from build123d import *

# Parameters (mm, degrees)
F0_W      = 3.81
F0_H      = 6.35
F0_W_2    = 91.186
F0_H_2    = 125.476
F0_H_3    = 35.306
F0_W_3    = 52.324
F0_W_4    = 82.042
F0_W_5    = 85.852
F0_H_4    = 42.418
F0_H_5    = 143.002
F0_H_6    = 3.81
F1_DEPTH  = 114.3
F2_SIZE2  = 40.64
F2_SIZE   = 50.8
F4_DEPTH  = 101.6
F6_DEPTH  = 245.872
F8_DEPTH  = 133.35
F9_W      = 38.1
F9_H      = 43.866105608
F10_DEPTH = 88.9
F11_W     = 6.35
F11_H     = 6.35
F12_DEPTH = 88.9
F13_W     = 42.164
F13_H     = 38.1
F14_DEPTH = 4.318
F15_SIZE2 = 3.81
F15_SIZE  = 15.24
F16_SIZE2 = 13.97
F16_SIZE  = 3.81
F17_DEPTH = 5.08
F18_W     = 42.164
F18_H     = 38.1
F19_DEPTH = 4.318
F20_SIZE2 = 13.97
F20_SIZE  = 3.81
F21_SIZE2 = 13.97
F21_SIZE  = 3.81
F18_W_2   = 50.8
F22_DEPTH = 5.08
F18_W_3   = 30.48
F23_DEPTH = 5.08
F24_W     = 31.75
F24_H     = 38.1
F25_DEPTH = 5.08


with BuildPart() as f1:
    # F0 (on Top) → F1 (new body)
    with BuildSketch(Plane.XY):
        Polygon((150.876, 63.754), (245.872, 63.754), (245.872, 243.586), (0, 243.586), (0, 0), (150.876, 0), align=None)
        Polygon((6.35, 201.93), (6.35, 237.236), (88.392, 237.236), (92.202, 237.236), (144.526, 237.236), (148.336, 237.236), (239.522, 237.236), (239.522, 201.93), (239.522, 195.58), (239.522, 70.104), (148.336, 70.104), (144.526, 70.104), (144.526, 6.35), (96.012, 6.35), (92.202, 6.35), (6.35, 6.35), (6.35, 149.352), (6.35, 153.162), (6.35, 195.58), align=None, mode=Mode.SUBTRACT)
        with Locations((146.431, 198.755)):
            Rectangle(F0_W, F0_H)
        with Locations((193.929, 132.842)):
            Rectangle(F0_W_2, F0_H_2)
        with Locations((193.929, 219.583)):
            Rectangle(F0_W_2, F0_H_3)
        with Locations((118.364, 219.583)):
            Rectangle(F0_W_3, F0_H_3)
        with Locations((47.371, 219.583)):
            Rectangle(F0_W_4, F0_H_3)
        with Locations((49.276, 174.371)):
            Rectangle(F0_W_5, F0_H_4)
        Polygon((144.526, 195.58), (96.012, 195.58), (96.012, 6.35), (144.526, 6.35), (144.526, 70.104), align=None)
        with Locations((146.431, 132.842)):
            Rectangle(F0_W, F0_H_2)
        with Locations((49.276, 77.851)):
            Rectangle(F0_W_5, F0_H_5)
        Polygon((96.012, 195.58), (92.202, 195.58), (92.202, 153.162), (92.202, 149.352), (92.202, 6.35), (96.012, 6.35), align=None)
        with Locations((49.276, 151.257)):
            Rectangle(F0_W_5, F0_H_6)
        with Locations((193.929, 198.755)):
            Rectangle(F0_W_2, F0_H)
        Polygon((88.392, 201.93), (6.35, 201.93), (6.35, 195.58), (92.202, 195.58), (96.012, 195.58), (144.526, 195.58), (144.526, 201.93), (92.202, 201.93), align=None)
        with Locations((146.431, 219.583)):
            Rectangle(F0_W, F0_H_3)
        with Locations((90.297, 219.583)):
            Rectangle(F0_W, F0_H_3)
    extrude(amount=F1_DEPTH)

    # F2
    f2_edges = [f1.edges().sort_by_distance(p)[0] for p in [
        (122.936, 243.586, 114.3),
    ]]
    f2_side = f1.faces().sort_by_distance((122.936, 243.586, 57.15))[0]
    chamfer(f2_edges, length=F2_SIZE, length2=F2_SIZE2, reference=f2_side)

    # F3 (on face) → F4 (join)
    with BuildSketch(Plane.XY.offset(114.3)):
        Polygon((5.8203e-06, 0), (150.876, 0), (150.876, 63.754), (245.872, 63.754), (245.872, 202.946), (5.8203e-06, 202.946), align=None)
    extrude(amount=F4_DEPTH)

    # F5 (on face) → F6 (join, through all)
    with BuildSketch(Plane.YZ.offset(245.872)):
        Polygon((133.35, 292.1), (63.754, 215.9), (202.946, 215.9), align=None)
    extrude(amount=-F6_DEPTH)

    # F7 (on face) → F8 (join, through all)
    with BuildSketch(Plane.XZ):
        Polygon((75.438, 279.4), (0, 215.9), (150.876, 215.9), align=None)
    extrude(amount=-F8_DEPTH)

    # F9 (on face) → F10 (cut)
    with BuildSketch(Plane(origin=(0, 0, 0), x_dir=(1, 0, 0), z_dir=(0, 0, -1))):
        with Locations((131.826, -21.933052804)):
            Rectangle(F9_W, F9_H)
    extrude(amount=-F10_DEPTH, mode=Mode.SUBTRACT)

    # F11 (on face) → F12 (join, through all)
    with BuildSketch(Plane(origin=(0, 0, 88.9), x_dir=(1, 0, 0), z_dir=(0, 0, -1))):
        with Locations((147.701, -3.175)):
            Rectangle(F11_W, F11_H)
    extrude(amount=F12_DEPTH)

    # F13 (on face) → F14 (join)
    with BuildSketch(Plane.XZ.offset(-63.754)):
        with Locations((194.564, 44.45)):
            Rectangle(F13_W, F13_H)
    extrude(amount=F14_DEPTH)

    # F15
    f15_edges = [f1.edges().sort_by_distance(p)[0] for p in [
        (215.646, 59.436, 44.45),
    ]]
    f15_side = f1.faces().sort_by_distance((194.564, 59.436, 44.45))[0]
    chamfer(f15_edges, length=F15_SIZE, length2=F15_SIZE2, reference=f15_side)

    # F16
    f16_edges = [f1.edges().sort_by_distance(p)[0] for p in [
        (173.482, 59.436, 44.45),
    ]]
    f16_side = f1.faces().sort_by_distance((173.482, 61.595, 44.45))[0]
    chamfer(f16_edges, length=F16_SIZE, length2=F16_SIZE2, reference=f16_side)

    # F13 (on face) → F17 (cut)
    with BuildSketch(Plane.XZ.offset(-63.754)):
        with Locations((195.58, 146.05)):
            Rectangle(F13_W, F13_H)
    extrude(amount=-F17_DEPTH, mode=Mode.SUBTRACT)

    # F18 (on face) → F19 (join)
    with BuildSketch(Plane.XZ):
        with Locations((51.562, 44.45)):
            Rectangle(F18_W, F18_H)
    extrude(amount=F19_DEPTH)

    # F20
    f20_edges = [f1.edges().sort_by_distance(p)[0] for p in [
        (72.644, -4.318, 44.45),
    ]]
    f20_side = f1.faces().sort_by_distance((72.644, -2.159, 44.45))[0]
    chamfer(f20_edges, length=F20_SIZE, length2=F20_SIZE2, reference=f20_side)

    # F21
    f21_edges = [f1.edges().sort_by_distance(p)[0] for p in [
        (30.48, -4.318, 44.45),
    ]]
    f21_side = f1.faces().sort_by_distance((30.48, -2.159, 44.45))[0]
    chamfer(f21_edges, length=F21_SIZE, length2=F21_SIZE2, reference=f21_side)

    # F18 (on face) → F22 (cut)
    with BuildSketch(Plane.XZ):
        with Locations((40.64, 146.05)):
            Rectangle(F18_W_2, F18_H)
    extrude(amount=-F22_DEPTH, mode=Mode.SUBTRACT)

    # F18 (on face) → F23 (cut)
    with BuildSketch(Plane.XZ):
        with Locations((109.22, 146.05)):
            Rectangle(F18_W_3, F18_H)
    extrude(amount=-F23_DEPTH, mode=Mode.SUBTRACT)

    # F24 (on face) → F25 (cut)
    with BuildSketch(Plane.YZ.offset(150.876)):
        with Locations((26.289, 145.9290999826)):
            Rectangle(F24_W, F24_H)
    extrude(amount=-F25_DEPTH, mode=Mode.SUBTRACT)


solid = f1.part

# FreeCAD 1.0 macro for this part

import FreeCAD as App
import Part
import Sketcher

V = App.Vector
Q = App.Units.Quantity


def edges_at(feature, points):
    """Names of the edges that pass closest to the given points."""
    edges = feature.Shape.Edges
    near = lambda p: min(range(len(edges)), key=lambda i: edges[i].distToShape(Part.Vertex(*p))[0])
    return sorted({f"Edge{near(p) + 1}" for p in points})

doc = App.newDocument("Part")
body = doc.addObject("PartDesign::Body", "Body")

sketch1 = doc.addObject("Sketcher::SketchObject", "Sketch")
body.addObject(sketch1)
sketch1.AttachmentSupport = (doc.XY_Plane, [""])
sketch1.MapMode = "FlatFace"
sketch1.addGeometry(Part.LineSegment(V(151, 64, 0), V(246, 64, 0)), False)
sketch1.addGeometry(Part.LineSegment(V(246, 64, 0), V(246, 244, 0)), False)
sketch1.addGeometry(Part.LineSegment(V(246, 244, 0), V(0, 244, 0)), False)
sketch1.addGeometry(Part.LineSegment(V(0, 244, 0), V(0, 0, 0)), False)
sketch1.addGeometry(Part.LineSegment(V(0, 0, 0), V(151, 0, 0)), False)
sketch1.addGeometry(Part.LineSegment(V(151, 0, 0), V(151, 64, 0)), False)
sketch1.addConstraint(Sketcher.Constraint("Coincident", 0, 2, 1, 1))
sketch1.addConstraint(Sketcher.Constraint("Coincident", 1, 2, 2, 1))
sketch1.addConstraint(Sketcher.Constraint("Coincident", 2, 2, 3, 1))
sketch1.addConstraint(Sketcher.Constraint("Coincident", 3, 2, 4, 1))
sketch1.addConstraint(Sketcher.Constraint("Coincident", 4, 2, 5, 1))
sketch1.addConstraint(Sketcher.Constraint("Coincident", 5, 2, 0, 1))
sketch1.addConstraint(Sketcher.Constraint("Horizontal", 0))
sketch1.addConstraint(Sketcher.Constraint("Vertical", 1))
sketch1.addConstraint(Sketcher.Constraint("Horizontal", 2))
sketch1.addConstraint(Sketcher.Constraint("Vertical", 3))
sketch1.addConstraint(Sketcher.Constraint("Horizontal", 4))
sketch1.addConstraint(Sketcher.Constraint("Vertical", 5))
sketch1.addConstraint(Sketcher.Constraint("Coincident", 3, 2, -1, 1))
sketch1.addConstraint(Sketcher.Constraint("DistanceX", 0, 1, 0, 2, Q("3.74 in")))
sketch1.addConstraint(Sketcher.Constraint("DistanceX", 2, 2, 2, 1, Q("9.68 in")))
sketch1.addConstraint(Sketcher.Constraint("DistanceY", 1, 1, 1, 2, Q("7.08 in")))
sketch1.addConstraint(Sketcher.Constraint("DistanceY", 3, 2, 3, 1, Q("9.59 in")))
pad1 = doc.addObject("PartDesign::Pad", "Pad")
body.addObject(pad1)
pad1.Profile = sketch1
pad1.Length = Q("4.5 in")
doc.recompute()

chamfer = doc.addObject("PartDesign::Chamfer", "Chamfer")
body.addObject(chamfer)
chamfer.Base = (pad1, edges_at(pad1, [(122.936, 243.586, 114.3)]))
chamfer.ChamferType = "Two distances"
chamfer.Size = Q("2 in")
chamfer.Size2 = Q("1.6 in")

sketch2 = doc.addObject("Sketcher::SketchObject", "Sketch001")
body.addObject(sketch2)
sketch2.AttachmentSupport = (doc.XY_Plane, [""])
sketch2.MapMode = "FlatFace"
sketch2.AttachmentOffset = App.Placement(V(0, 0, 4.5 * 25.4), App.Rotation())
sketch2.addGeometry(Part.LineSegment(V(0, 0, 0), V(151, 0, 0)), False)
sketch2.addGeometry(Part.LineSegment(V(151, 0, 0), V(151, 64, 0)), False)
sketch2.addGeometry(Part.LineSegment(V(151, 64, 0), V(246, 64, 0)), False)
sketch2.addGeometry(Part.LineSegment(V(246, 64, 0), V(246, 203, 0)), False)
sketch2.addGeometry(Part.LineSegment(V(246, 203, 0), V(0, 203, 0)), False)
sketch2.addGeometry(Part.LineSegment(V(0, 203, 0), V(0, 0, 0)), False)
sketch2.addConstraint(Sketcher.Constraint("Coincident", 0, 2, 1, 1))
sketch2.addConstraint(Sketcher.Constraint("Coincident", 1, 2, 2, 1))
sketch2.addConstraint(Sketcher.Constraint("Coincident", 2, 2, 3, 1))
sketch2.addConstraint(Sketcher.Constraint("Coincident", 3, 2, 4, 1))
sketch2.addConstraint(Sketcher.Constraint("Coincident", 4, 2, 5, 1))
sketch2.addConstraint(Sketcher.Constraint("Coincident", 5, 2, 0, 1))
sketch2.addConstraint(Sketcher.Constraint("Horizontal", 0))
sketch2.addConstraint(Sketcher.Constraint("Vertical", 1))
sketch2.addConstraint(Sketcher.Constraint("Horizontal", 2))
sketch2.addConstraint(Sketcher.Constraint("Vertical", 3))
sketch2.addConstraint(Sketcher.Constraint("Horizontal", 4))
sketch2.addConstraint(Sketcher.Constraint("Vertical", 5))
sketch2.addConstraint(Sketcher.Constraint("Coincident", 5, 2, -1, 1))
sketch2.addConstraint(Sketcher.Constraint("DistanceX", 2, 1, 2, 2, Q("3.74 in")))
sketch2.addConstraint(Sketcher.Constraint("DistanceY", 1, 1, 1, 2, Q("2.51 in")))
sketch2.addConstraint(Sketcher.Constraint("DistanceY", 3, 1, 3, 2, Q("5.48 in")))
sketch2.addConstraint(Sketcher.Constraint("DistanceX", -1, 1, 0, 2, Q("5.94 in")))
pad2 = doc.addObject("PartDesign::Pad", "Pad001")
body.addObject(pad2)
pad2.Profile = sketch2
pad2.Length = Q("4 in")

sketch3 = doc.addObject("Sketcher::SketchObject", "Sketch002")
body.addObject(sketch3)
sketch3.AttachmentSupport = (doc.YZ_Plane, [""])
sketch3.MapMode = "FlatFace"
sketch3.AttachmentOffset = App.Placement(V(0, 0, 9.68 * 25.4), App.Rotation())
sketch3.addGeometry(Part.LineSegment(V(133, 292, 0), V(64, 216, 0)), False)
sketch3.addGeometry(Part.LineSegment(V(64, 216, 0), V(203, 216, 0)), False)
sketch3.addGeometry(Part.LineSegment(V(203, 216, 0), V(133, 292, 0)), False)
sketch3.addConstraint(Sketcher.Constraint("Coincident", 0, 2, 1, 1))
sketch3.addConstraint(Sketcher.Constraint("Coincident", 1, 2, 2, 1))
sketch3.addConstraint(Sketcher.Constraint("Coincident", 2, 2, 0, 1))
sketch3.addConstraint(Sketcher.Constraint("Horizontal", 1))
sketch3.addConstraint(Sketcher.Constraint("Equal", 0, 2))
sketch3.addConstraint(Sketcher.Constraint("DistanceY", 0, 2, 2, 2, Q("3 in")))
sketch3.addConstraint(Sketcher.Constraint("DistanceX", 1, 1, 1, 2, Q("5.48 in")))
sketch3.addConstraint(Sketcher.Constraint("DistanceY", -1, 1, 0, 2, Q("8.5 in")))
sketch3.addConstraint(Sketcher.Constraint("DistanceX", -1, 1, 0, 2, Q("2.51 in")))
pad3 = doc.addObject("PartDesign::Pad", "Pad002")
body.addObject(pad3)
pad3.Profile = sketch3
pad3.Length = Q("9.68 in")
pad3.Reversed = True

sketch4 = doc.addObject("Sketcher::SketchObject", "Sketch003")
body.addObject(sketch4)
sketch4.AttachmentSupport = (doc.XZ_Plane, [""])
sketch4.MapMode = "FlatFace"
sketch4.addGeometry(Part.LineSegment(V(75, 279, 0), V(0, 216, 0)), False)
sketch4.addGeometry(Part.LineSegment(V(0, 216, 0), V(151, 216, 0)), False)
sketch4.addGeometry(Part.LineSegment(V(151, 216, 0), V(75, 279, 0)), False)
sketch4.addConstraint(Sketcher.Constraint("Coincident", 0, 2, 1, 1))
sketch4.addConstraint(Sketcher.Constraint("Coincident", 1, 2, 2, 1))
sketch4.addConstraint(Sketcher.Constraint("Coincident", 2, 2, 0, 1))
sketch4.addConstraint(Sketcher.Constraint("Horizontal", 1))
sketch4.addConstraint(Sketcher.Constraint("PointOnObject", 0, 2, -2))
sketch4.addConstraint(Sketcher.Constraint("Equal", 0, 2))
sketch4.addConstraint(Sketcher.Constraint("DistanceY", -1, 1, 2, 2, Q("11 in")))
sketch4.addConstraint(Sketcher.Constraint("DistanceX", 1, 1, 1, 2, Q("5.94 in")))
sketch4.addConstraint(Sketcher.Constraint("DistanceY", -1, 1, 0, 2, Q("8.5 in")))
pad4 = doc.addObject("PartDesign::Pad", "Pad003")
body.addObject(pad4)
pad4.Profile = sketch4
pad4.Type = "UpToLast"
pad4.Reversed = True

sketch5 = doc.addObject("Sketcher::SketchObject", "Sketch004")
body.addObject(sketch5)
sketch5.AttachmentSupport = (doc.XY_Plane, [""])
sketch5.MapMode = "FlatFace"
sketch5.addGeometry(Part.LineSegment(V(113, 0, 0), V(113, 44, 0)), False)
sketch5.addGeometry(Part.LineSegment(V(113, 44, 0), V(151, 44, 0)), False)
sketch5.addGeometry(Part.LineSegment(V(151, 44, 0), V(151, 0, 0)), False)
sketch5.addGeometry(Part.LineSegment(V(151, 0, 0), V(113, 0, 0)), False)
sketch5.addConstraint(Sketcher.Constraint("Coincident", 0, 2, 1, 1))
sketch5.addConstraint(Sketcher.Constraint("Coincident", 1, 2, 2, 1))
sketch5.addConstraint(Sketcher.Constraint("Coincident", 2, 2, 3, 1))
sketch5.addConstraint(Sketcher.Constraint("Coincident", 3, 2, 0, 1))
sketch5.addConstraint(Sketcher.Constraint("Vertical", 0))
sketch5.addConstraint(Sketcher.Constraint("Horizontal", 1))
sketch5.addConstraint(Sketcher.Constraint("Vertical", 2))
sketch5.addConstraint(Sketcher.Constraint("Horizontal", 3))
sketch5.addConstraint(Sketcher.Constraint("PointOnObject", 2, 2, -1))
sketch5.addConstraint(Sketcher.Constraint("DistanceX", 1, 1, 1, 2, Q("1.5 in")))
sketch5.addConstraint(Sketcher.Constraint("DistanceX", -1, 1, 0, 2, Q("4.44 in")))
sketch5.addConstraint(Sketcher.Constraint("DistanceY", 0, 1, 0, 2, Q("43.866106 mm")))
pocket1 = doc.addObject("PartDesign::Pocket", "Pocket")
body.addObject(pocket1)
pocket1.Profile = sketch5
pocket1.Length = Q("3.5 in")
pocket1.Reversed = True

sketch6 = doc.addObject("Sketcher::SketchObject", "Sketch005")
body.addObject(sketch6)
sketch6.AttachmentSupport = (doc.XY_Plane, [""])
sketch6.MapMode = "FlatFace"
sketch6.AttachmentOffset = App.Placement(V(0, 0, 3.5 * 25.4), App.Rotation())
sketch6.addGeometry(Part.LineSegment(V(145, 0, 0), V(145, 6, 0)), False)
sketch6.addGeometry(Part.LineSegment(V(145, 6, 0), V(151, 6, 0)), False)
sketch6.addGeometry(Part.LineSegment(V(151, 6, 0), V(151, 0, 0)), False)
sketch6.addGeometry(Part.LineSegment(V(151, 0, 0), V(145, 0, 0)), False)
sketch6.addConstraint(Sketcher.Constraint("Coincident", 0, 2, 1, 1))
sketch6.addConstraint(Sketcher.Constraint("Coincident", 1, 2, 2, 1))
sketch6.addConstraint(Sketcher.Constraint("Coincident", 2, 2, 3, 1))
sketch6.addConstraint(Sketcher.Constraint("Coincident", 3, 2, 0, 1))
sketch6.addConstraint(Sketcher.Constraint("Vertical", 0))
sketch6.addConstraint(Sketcher.Constraint("Horizontal", 1))
sketch6.addConstraint(Sketcher.Constraint("Vertical", 2))
sketch6.addConstraint(Sketcher.Constraint("Horizontal", 3))
sketch6.addConstraint(Sketcher.Constraint("PointOnObject", 2, 2, -1))
sketch6.addConstraint(Sketcher.Constraint("Equal", 3, 0))
sketch6.addConstraint(Sketcher.Constraint("DistanceX", 1, 1, 1, 2, Q("0.25 in")))
sketch6.addConstraint(Sketcher.Constraint("DistanceX", -1, 1, 0, 2, Q("5.69 in")))
pad5 = doc.addObject("PartDesign::Pad", "Pad004")
body.addObject(pad5)
pad5.Profile = sketch6
pad5.Length = Q("3.5 in")
pad5.Reversed = True

sketch7 = doc.addObject("Sketcher::SketchObject", "Sketch006")
body.addObject(sketch7)
sketch7.AttachmentSupport = (doc.XZ_Plane, [""])
sketch7.MapMode = "FlatFace"
sketch7.AttachmentOffset = App.Placement(V(0, 0, -2.51 * 25.4), App.Rotation())
sketch7.addGeometry(Part.LineSegment(V(173, 64, 0), V(173, 25, 0)), False)
sketch7.addGeometry(Part.LineSegment(V(173, 25, 0), V(216, 25, 0)), False)
sketch7.addGeometry(Part.LineSegment(V(216, 25, 0), V(216, 64, 0)), False)
sketch7.addGeometry(Part.LineSegment(V(216, 64, 0), V(173, 64, 0)), False)
sketch7.addConstraint(Sketcher.Constraint("Coincident", 0, 2, 1, 1))
sketch7.addConstraint(Sketcher.Constraint("Coincident", 1, 2, 2, 1))
sketch7.addConstraint(Sketcher.Constraint("Coincident", 2, 2, 3, 1))
sketch7.addConstraint(Sketcher.Constraint("Coincident", 3, 2, 0, 1))
sketch7.addConstraint(Sketcher.Constraint("Vertical", 0))
sketch7.addConstraint(Sketcher.Constraint("Horizontal", 1))
sketch7.addConstraint(Sketcher.Constraint("Vertical", 2))
sketch7.addConstraint(Sketcher.Constraint("Horizontal", 3))
sketch7.addConstraint(Sketcher.Constraint("DistanceY", 0, 2, 0, 1, Q("1.5 in")))
sketch7.addConstraint(Sketcher.Constraint("DistanceY", -1, 1, 0, 2, Q("1 in")))
sketch7.addConstraint(Sketcher.Constraint("DistanceX", 1, 1, 1, 2, Q("1.66 in")))
sketch7.addConstraint(Sketcher.Constraint("DistanceX", -1, 1, 0, 2, Q("6.83 in")))
pad6 = doc.addObject("PartDesign::Pad", "Pad005")
body.addObject(pad6)
pad6.Profile = sketch7
pad6.Length = Q("0.17 in")
doc.recompute()

chamfer2 = doc.addObject("PartDesign::Chamfer", "Chamfer001")
body.addObject(chamfer2)
chamfer2.Base = (pad6, edges_at(pad6, [(215.646, 59.436, 44.45)]))
chamfer2.ChamferType = "Two distances"
chamfer2.Size = Q("0.6 in")
chamfer2.Size2 = Q("0.15 in")
chamfer2.FlipDirection = True
doc.recompute()

chamfer3 = doc.addObject("PartDesign::Chamfer", "Chamfer002")
body.addObject(chamfer3)
chamfer3.Base = (chamfer2, edges_at(chamfer2, [(173.482, 59.436, 44.45)]))
chamfer3.ChamferType = "Two distances"
chamfer3.Size = Q("0.15 in")
chamfer3.Size2 = Q("0.55 in")
chamfer3.FlipDirection = True

sketch8 = doc.addObject("Sketcher::SketchObject", "Sketch007")
body.addObject(sketch8)
sketch8.AttachmentSupport = (doc.XZ_Plane, [""])
sketch8.MapMode = "FlatFace"
sketch8.AttachmentOffset = App.Placement(V(0, 0, -2.51 * 25.4), App.Rotation())
sketch8.addGeometry(Part.LineSegment(V(174, 165, 0), V(174, 127, 0)), False)
sketch8.addGeometry(Part.LineSegment(V(174, 127, 0), V(217, 127, 0)), False)
sketch8.addGeometry(Part.LineSegment(V(217, 127, 0), V(217, 165, 0)), False)
sketch8.addGeometry(Part.LineSegment(V(217, 165, 0), V(174, 165, 0)), False)
sketch8.addConstraint(Sketcher.Constraint("Coincident", 0, 2, 1, 1))
sketch8.addConstraint(Sketcher.Constraint("Coincident", 1, 2, 2, 1))
sketch8.addConstraint(Sketcher.Constraint("Coincident", 2, 2, 3, 1))
sketch8.addConstraint(Sketcher.Constraint("Coincident", 3, 2, 0, 1))
sketch8.addConstraint(Sketcher.Constraint("Vertical", 0))
sketch8.addConstraint(Sketcher.Constraint("Horizontal", 1))
sketch8.addConstraint(Sketcher.Constraint("Vertical", 2))
sketch8.addConstraint(Sketcher.Constraint("Horizontal", 3))
sketch8.addConstraint(Sketcher.Constraint("DistanceY", 0, 2, 0, 1, Q("1.5 in")))
sketch8.addConstraint(Sketcher.Constraint("DistanceY", -1, 1, 0, 2, Q("5 in")))
sketch8.addConstraint(Sketcher.Constraint("DistanceX", 1, 1, 1, 2, Q("1.66 in")))
sketch8.addConstraint(Sketcher.Constraint("DistanceX", -1, 1, 0, 2, Q("6.87 in")))
pocket2 = doc.addObject("PartDesign::Pocket", "Pocket001")
body.addObject(pocket2)
pocket2.Profile = sketch8
pocket2.Length = Q("0.2 in")

sketch9 = doc.addObject("Sketcher::SketchObject", "Sketch008")
body.addObject(sketch9)
sketch9.AttachmentSupport = (doc.XZ_Plane, [""])
sketch9.MapMode = "FlatFace"
sketch9.addGeometry(Part.LineSegment(V(30, 64, 0), V(30, 25, 0)), False)
sketch9.addGeometry(Part.LineSegment(V(30, 25, 0), V(73, 25, 0)), False)
sketch9.addGeometry(Part.LineSegment(V(73, 25, 0), V(73, 64, 0)), False)
sketch9.addGeometry(Part.LineSegment(V(73, 64, 0), V(30, 64, 0)), False)
sketch9.addConstraint(Sketcher.Constraint("Coincident", 0, 2, 1, 1))
sketch9.addConstraint(Sketcher.Constraint("Coincident", 1, 2, 2, 1))
sketch9.addConstraint(Sketcher.Constraint("Coincident", 2, 2, 3, 1))
sketch9.addConstraint(Sketcher.Constraint("Coincident", 3, 2, 0, 1))
sketch9.addConstraint(Sketcher.Constraint("Vertical", 0))
sketch9.addConstraint(Sketcher.Constraint("Horizontal", 1))
sketch9.addConstraint(Sketcher.Constraint("Vertical", 2))
sketch9.addConstraint(Sketcher.Constraint("Horizontal", 3))
sketch9.addConstraint(Sketcher.Constraint("DistanceY", 0, 2, 0, 1, Q("1.5 in")))
sketch9.addConstraint(Sketcher.Constraint("DistanceY", -1, 1, 0, 2, Q("1 in")))
sketch9.addConstraint(Sketcher.Constraint("DistanceX", 1, 1, 1, 2, Q("1.66 in")))
sketch9.addConstraint(Sketcher.Constraint("DistanceX", -1, 1, 0, 2, Q("1.2 in")))
pad7 = doc.addObject("PartDesign::Pad", "Pad006")
body.addObject(pad7)
pad7.Profile = sketch9
pad7.Length = Q("0.17 in")
doc.recompute()

chamfer4 = doc.addObject("PartDesign::Chamfer", "Chamfer003")
body.addObject(chamfer4)
chamfer4.Base = (pad7, edges_at(pad7, [(72.644, -4.318, 44.45)]))
chamfer4.ChamferType = "Two distances"
chamfer4.Size = Q("0.15 in")
chamfer4.Size2 = Q("0.55 in")
doc.recompute()

chamfer5 = doc.addObject("PartDesign::Chamfer", "Chamfer004")
body.addObject(chamfer5)
chamfer5.Base = (chamfer4, edges_at(chamfer4, [(30.48, -4.318, 44.45)]))
chamfer5.ChamferType = "Two distances"
chamfer5.Size = Q("0.15 in")
chamfer5.Size2 = Q("0.55 in")
chamfer5.FlipDirection = True

sketch10 = doc.addObject("Sketcher::SketchObject", "Sketch009")
body.addObject(sketch10)
sketch10.AttachmentSupport = (doc.XZ_Plane, [""])
sketch10.MapMode = "FlatFace"
sketch10.addGeometry(Part.LineSegment(V(15, 165, 0), V(15, 127, 0)), False)
sketch10.addGeometry(Part.LineSegment(V(15, 127, 0), V(66, 127, 0)), False)
sketch10.addGeometry(Part.LineSegment(V(66, 127, 0), V(66, 165, 0)), False)
sketch10.addGeometry(Part.LineSegment(V(66, 165, 0), V(15, 165, 0)), False)
sketch10.addConstraint(Sketcher.Constraint("Coincident", 0, 2, 1, 1))
sketch10.addConstraint(Sketcher.Constraint("Coincident", 1, 2, 2, 1))
sketch10.addConstraint(Sketcher.Constraint("Coincident", 2, 2, 3, 1))
sketch10.addConstraint(Sketcher.Constraint("Coincident", 3, 2, 0, 1))
sketch10.addConstraint(Sketcher.Constraint("Vertical", 0))
sketch10.addConstraint(Sketcher.Constraint("Horizontal", 1))
sketch10.addConstraint(Sketcher.Constraint("Vertical", 2))
sketch10.addConstraint(Sketcher.Constraint("Horizontal", 3))
sketch10.addConstraint(Sketcher.Constraint("DistanceX", 1, 1, 1, 2, Q("2 in")))
sketch10.addConstraint(Sketcher.Constraint("DistanceY", 0, 2, 0, 1, Q("1.5 in")))
sketch10.addConstraint(Sketcher.Constraint("DistanceY", -1, 1, 0, 2, Q("5 in")))
sketch10.addConstraint(Sketcher.Constraint("DistanceX", -1, 1, 0, 2, Q("0.6 in")))
pocket3 = doc.addObject("PartDesign::Pocket", "Pocket002")
body.addObject(pocket3)
pocket3.Profile = sketch10
pocket3.Length = Q("0.2 in")

sketch11 = doc.addObject("Sketcher::SketchObject", "Sketch010")
body.addObject(sketch11)
sketch11.AttachmentSupport = (doc.XZ_Plane, [""])
sketch11.MapMode = "FlatFace"
sketch11.addGeometry(Part.LineSegment(V(94, 165, 0), V(94, 127, 0)), False)
sketch11.addGeometry(Part.LineSegment(V(94, 127, 0), V(124, 127, 0)), False)
sketch11.addGeometry(Part.LineSegment(V(124, 127, 0), V(124, 165, 0)), False)
sketch11.addGeometry(Part.LineSegment(V(124, 165, 0), V(94, 165, 0)), False)
sketch11.addConstraint(Sketcher.Constraint("Coincident", 0, 2, 1, 1))
sketch11.addConstraint(Sketcher.Constraint("Coincident", 1, 2, 2, 1))
sketch11.addConstraint(Sketcher.Constraint("Coincident", 2, 2, 3, 1))
sketch11.addConstraint(Sketcher.Constraint("Coincident", 3, 2, 0, 1))
sketch11.addConstraint(Sketcher.Constraint("Vertical", 0))
sketch11.addConstraint(Sketcher.Constraint("Horizontal", 1))
sketch11.addConstraint(Sketcher.Constraint("Vertical", 2))
sketch11.addConstraint(Sketcher.Constraint("Horizontal", 3))
sketch11.addConstraint(Sketcher.Constraint("DistanceX", 1, 1, 1, 2, Q("1.2 in")))
sketch11.addConstraint(Sketcher.Constraint("DistanceY", 0, 2, 0, 1, Q("1.5 in")))
sketch11.addConstraint(Sketcher.Constraint("DistanceY", -1, 1, 0, 2, Q("5 in")))
sketch11.addConstraint(Sketcher.Constraint("DistanceX", -1, 1, 0, 2, Q("3.7 in")))
pocket4 = doc.addObject("PartDesign::Pocket", "Pocket003")
body.addObject(pocket4)
pocket4.Profile = sketch11
pocket4.Length = Q("0.2 in")

sketch12 = doc.addObject("Sketcher::SketchObject", "Sketch011")
body.addObject(sketch12)
sketch12.AttachmentSupport = (doc.YZ_Plane, [""])
sketch12.MapMode = "FlatFace"
sketch12.AttachmentOffset = App.Placement(V(0, 0, 5.94 * 25.4), App.Rotation())
sketch12.addGeometry(Part.LineSegment(V(10, 165, 0), V(10, 127, 0)), False)
sketch12.addGeometry(Part.LineSegment(V(10, 127, 0), V(42, 127, 0)), False)
sketch12.addGeometry(Part.LineSegment(V(42, 127, 0), V(42, 165, 0)), False)
sketch12.addGeometry(Part.LineSegment(V(42, 165, 0), V(10, 165, 0)), False)
sketch12.addConstraint(Sketcher.Constraint("Coincident", 0, 2, 1, 1))
sketch12.addConstraint(Sketcher.Constraint("Coincident", 1, 2, 2, 1))
sketch12.addConstraint(Sketcher.Constraint("Coincident", 2, 2, 3, 1))
sketch12.addConstraint(Sketcher.Constraint("Coincident", 3, 2, 0, 1))
sketch12.addConstraint(Sketcher.Constraint("Vertical", 0))
sketch12.addConstraint(Sketcher.Constraint("Horizontal", 1))
sketch12.addConstraint(Sketcher.Constraint("Vertical", 2))
sketch12.addConstraint(Sketcher.Constraint("Horizontal", 3))
sketch12.addConstraint(Sketcher.Constraint("DistanceY", 0, 2, 0, 1, Q("1.5 in")))
sketch12.addConstraint(Sketcher.Constraint("DistanceX", 1, 1, 1, 2, Q("1.25 in")))
sketch12.addConstraint(Sketcher.Constraint("DistanceX", -1, 1, 0, 2, Q("0.41 in")))
sketch12.addConstraint(Sketcher.Constraint("DistanceY", -1, 1, 0, 2, Q("126.8791 mm")))
pocket5 = doc.addObject("PartDesign::Pocket", "Pocket004")
body.addObject(pocket5)
pocket5.Profile = sketch12
pocket5.Length = Q("0.2 in")

doc.recompute()
